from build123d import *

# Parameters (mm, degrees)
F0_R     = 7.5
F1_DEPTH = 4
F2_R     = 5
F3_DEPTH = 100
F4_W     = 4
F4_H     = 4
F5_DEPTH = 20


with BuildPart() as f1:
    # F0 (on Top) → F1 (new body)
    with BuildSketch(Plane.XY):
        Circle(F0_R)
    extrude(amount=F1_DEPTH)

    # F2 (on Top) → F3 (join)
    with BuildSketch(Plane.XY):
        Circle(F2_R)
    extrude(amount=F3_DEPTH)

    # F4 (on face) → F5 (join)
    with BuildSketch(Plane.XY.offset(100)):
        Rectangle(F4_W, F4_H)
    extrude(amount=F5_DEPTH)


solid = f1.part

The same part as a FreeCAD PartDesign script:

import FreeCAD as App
import Part
import Sketcher

V = App.Vector


def add_polygon(sketch, points):
    """Adds a closed chain of lines whose ends are joined by coincident constraints."""
    first, n = sketch.GeometryCount, len(points)
    for a, b in zip(points, points[1:] + points[:1]):
        sketch.addGeometry(Part.LineSegment(App.Vector(*a, 0), App.Vector(*b, 0)), False)
    for i in range(n):
        sketch.addConstraint(Sketcher.Constraint("Coincident", first + i, 2, first + (i + 1) % n, 1))

doc = App.newDocument("Part")
body = doc.addObject("PartDesign::Body", "Body")

# Sketch on XY plane
sketch1 = body.newObject("Sketcher::SketchObject", "Sketch")
sketch1.AttachmentSupport = (doc.getObject("XY_Plane"), [""])
sketch1.MapMode = "FlatFace"
sketch1.addGeometry(Part.Circle(V(0, 0, 0), V(0, 0, 1), 8), False)
sketch1.addConstraint([
    Sketcher.Constraint("Coincident", 0, 3, -1, 1),
    Sketcher.Constraint("Diameter", 0, 15.0),
])
pad1 = body.newObject("PartDesign::Pad", "Pad")
pad1.Profile = sketch1
pad1.Length = 4

# Sketch on XY plane
sketch2 = body.newObject("Sketcher::SketchObject", "Sketch001")
sketch2.AttachmentSupport = (doc.getObject("XY_Plane"), [""])
sketch2.MapMode = "FlatFace"
sketch2.addGeometry(Part.Circle(V(0, 0, 0), V(0, 0, 1), 5), False)
sketch2.addConstraint([
    Sketcher.Constraint("Coincident", 0, 3, -1, 1),
    Sketcher.Constraint("Diameter", 0, 10.0),
])
pad2 = body.newObject("PartDesign::Pad", "Pad001")
pad2.Profile = sketch2
pad2.Length = 100

# Sketch on XY plane
sketch3 = body.newObject("Sketcher::SketchObject", "Sketch002")
sketch3.AttachmentSupport = (doc.getObject("XY_Plane"), [""])
sketch3.MapMode = "FlatFace"
sketch3.AttachmentOffset = App.Placement(V(0, 0, 100), App.Rotation())
add_polygon(sketch3, [(-2, 2), (-2, -2), (2, -2), (2, 2)])  # lines 0-3
sketch3.addConstraint([
    Sketcher.Constraint("Vertical", 0),
    Sketcher.Constraint("Horizontal", 1),
    Sketcher.Constraint("Vertical", 2),
    Sketcher.Constraint("Horizontal", 3),
    Sketcher.Constraint("Symmetric", 0, 2, 2, 2, -1, 1),
    Sketcher.Constraint("Equal", 3, 0),
    Sketcher.Constraint("DistanceX", 1, 1, 1, 2, 4.0),
])
pad3 = body.newObject("PartDesign::Pad", "Pad002")
pad3.Profile = sketch3
pad3.Length = 20

doc.recompute()
